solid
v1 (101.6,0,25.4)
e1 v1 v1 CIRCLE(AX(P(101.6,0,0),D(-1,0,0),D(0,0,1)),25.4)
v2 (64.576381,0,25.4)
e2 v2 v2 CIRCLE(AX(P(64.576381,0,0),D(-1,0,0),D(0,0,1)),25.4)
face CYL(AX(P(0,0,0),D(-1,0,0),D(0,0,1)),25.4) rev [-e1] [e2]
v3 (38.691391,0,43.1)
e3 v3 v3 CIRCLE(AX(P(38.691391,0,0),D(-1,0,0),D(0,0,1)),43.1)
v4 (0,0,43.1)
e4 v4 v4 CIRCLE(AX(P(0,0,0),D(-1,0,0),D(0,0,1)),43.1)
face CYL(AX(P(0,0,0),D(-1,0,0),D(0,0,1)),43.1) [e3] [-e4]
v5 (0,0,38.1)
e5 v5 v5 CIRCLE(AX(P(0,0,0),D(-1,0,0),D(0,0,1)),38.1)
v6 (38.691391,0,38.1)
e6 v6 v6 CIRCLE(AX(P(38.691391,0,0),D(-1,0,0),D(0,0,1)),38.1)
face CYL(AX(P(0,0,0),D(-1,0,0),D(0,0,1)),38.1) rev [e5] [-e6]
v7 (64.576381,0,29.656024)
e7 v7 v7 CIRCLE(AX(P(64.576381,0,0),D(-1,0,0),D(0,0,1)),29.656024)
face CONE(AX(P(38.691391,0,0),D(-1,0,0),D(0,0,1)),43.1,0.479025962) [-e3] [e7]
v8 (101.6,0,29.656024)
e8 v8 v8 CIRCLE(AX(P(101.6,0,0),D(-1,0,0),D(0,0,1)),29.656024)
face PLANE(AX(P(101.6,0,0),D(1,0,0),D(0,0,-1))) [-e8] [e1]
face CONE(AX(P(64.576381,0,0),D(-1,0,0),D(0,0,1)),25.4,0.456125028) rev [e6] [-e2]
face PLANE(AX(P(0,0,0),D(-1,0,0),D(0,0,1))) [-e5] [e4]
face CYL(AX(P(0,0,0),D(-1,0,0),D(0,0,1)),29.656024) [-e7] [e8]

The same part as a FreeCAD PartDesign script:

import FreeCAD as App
import Part
import Sketcher

V = App.Vector


def add_polygon(sketch, points):
    """Adds a closed chain of lines whose ends are joined by coincident constraints."""
    first, n = sketch.GeometryCount, len(points)
    for a, b in zip(points, points[1:] + points[:1]):
        sketch.addGeometry(Part.LineSegment(App.Vector(*a, 0), App.Vector(*b, 0)), False)
    for i in range(n):
        sketch.addConstraint(Sketcher.Constraint("Coincident", first + i, 2, first + (i + 1) % n, 1))

doc = App.newDocument("Part")
body = doc.addObject("PartDesign::Body", "Body")

sketch1 = doc.addObject("Sketcher::SketchObject", "Sketch")
body.addObject(sketch1)
sketch1.AttachmentSupport = (doc.XY_Plane, [""])
sketch1.MapMode = "FlatFace"
add_polygon(sketch1, [(0, 43.1), (0, 38.1), (38.7, 38.1), (64.6, 25.4), (101.6, 25.4), (101.6, 29.7), (64.6, 29.7), (38.7, 43.1)])
sketch1.addConstraint(Sketcher.Constraint("Vertical", 0))
sketch1.addConstraint(Sketcher.Constraint("Horizontal", 1))
sketch1.addConstraint(Sketcher.Constraint("Horizontal", 3))
sketch1.addConstraint(Sketcher.Constraint("Vertical", 4))
sketch1.addConstraint(Sketcher.Constraint("Horizontal", 5))
sketch1.addConstraint(Sketcher.Constraint("Horizontal", 7))
sketch1.addConstraint(Sketcher.Constraint("PointOnObject", 0, 2, -2))
sketch1.addConstraint(Sketcher.Constraint("Vertical", 2, 2, 5, 2))
sketch1.addConstraint(Sketcher.Constraint("Vertical", 1, 2, 6, 2))
sketch1.addConstraint(Sketcher.Constraint("DistanceY", 0, 2, 0, 1, 5.0))
sketch1.addConstraint(Sketcher.Constraint("DistanceY", -1, 1, 0, 2, 38.1))
sketch1.addConstraint(Sketcher.Constraint("DistanceY", -1, 1, 2, 2, 25.4))
sketch1.addConstraint(Sketcher.Constraint("DistanceX", -1, 1, 3, 2, 101.6))
sketch1.addConstraint(Sketcher.Constraint("DistanceX", 1, 1, 1, 2, 38.691391))
sketch1.addConstraint(Sketcher.Constraint("DistanceX", 3, 1, 3, 2, 37.023619))
sketch1.addConstraint(Sketcher.Constraint("DistanceY", 4, 1, 4, 2, 4.256024))
revolution = doc.addObject("PartDesign::Revolution", "Revolution")
body.addObject(revolution)
revolution.Profile = sketch1
revolution.ReferenceAxis = (sketch1, ["H_Axis"])
revolution.Angle = 360

doc.recompute()
